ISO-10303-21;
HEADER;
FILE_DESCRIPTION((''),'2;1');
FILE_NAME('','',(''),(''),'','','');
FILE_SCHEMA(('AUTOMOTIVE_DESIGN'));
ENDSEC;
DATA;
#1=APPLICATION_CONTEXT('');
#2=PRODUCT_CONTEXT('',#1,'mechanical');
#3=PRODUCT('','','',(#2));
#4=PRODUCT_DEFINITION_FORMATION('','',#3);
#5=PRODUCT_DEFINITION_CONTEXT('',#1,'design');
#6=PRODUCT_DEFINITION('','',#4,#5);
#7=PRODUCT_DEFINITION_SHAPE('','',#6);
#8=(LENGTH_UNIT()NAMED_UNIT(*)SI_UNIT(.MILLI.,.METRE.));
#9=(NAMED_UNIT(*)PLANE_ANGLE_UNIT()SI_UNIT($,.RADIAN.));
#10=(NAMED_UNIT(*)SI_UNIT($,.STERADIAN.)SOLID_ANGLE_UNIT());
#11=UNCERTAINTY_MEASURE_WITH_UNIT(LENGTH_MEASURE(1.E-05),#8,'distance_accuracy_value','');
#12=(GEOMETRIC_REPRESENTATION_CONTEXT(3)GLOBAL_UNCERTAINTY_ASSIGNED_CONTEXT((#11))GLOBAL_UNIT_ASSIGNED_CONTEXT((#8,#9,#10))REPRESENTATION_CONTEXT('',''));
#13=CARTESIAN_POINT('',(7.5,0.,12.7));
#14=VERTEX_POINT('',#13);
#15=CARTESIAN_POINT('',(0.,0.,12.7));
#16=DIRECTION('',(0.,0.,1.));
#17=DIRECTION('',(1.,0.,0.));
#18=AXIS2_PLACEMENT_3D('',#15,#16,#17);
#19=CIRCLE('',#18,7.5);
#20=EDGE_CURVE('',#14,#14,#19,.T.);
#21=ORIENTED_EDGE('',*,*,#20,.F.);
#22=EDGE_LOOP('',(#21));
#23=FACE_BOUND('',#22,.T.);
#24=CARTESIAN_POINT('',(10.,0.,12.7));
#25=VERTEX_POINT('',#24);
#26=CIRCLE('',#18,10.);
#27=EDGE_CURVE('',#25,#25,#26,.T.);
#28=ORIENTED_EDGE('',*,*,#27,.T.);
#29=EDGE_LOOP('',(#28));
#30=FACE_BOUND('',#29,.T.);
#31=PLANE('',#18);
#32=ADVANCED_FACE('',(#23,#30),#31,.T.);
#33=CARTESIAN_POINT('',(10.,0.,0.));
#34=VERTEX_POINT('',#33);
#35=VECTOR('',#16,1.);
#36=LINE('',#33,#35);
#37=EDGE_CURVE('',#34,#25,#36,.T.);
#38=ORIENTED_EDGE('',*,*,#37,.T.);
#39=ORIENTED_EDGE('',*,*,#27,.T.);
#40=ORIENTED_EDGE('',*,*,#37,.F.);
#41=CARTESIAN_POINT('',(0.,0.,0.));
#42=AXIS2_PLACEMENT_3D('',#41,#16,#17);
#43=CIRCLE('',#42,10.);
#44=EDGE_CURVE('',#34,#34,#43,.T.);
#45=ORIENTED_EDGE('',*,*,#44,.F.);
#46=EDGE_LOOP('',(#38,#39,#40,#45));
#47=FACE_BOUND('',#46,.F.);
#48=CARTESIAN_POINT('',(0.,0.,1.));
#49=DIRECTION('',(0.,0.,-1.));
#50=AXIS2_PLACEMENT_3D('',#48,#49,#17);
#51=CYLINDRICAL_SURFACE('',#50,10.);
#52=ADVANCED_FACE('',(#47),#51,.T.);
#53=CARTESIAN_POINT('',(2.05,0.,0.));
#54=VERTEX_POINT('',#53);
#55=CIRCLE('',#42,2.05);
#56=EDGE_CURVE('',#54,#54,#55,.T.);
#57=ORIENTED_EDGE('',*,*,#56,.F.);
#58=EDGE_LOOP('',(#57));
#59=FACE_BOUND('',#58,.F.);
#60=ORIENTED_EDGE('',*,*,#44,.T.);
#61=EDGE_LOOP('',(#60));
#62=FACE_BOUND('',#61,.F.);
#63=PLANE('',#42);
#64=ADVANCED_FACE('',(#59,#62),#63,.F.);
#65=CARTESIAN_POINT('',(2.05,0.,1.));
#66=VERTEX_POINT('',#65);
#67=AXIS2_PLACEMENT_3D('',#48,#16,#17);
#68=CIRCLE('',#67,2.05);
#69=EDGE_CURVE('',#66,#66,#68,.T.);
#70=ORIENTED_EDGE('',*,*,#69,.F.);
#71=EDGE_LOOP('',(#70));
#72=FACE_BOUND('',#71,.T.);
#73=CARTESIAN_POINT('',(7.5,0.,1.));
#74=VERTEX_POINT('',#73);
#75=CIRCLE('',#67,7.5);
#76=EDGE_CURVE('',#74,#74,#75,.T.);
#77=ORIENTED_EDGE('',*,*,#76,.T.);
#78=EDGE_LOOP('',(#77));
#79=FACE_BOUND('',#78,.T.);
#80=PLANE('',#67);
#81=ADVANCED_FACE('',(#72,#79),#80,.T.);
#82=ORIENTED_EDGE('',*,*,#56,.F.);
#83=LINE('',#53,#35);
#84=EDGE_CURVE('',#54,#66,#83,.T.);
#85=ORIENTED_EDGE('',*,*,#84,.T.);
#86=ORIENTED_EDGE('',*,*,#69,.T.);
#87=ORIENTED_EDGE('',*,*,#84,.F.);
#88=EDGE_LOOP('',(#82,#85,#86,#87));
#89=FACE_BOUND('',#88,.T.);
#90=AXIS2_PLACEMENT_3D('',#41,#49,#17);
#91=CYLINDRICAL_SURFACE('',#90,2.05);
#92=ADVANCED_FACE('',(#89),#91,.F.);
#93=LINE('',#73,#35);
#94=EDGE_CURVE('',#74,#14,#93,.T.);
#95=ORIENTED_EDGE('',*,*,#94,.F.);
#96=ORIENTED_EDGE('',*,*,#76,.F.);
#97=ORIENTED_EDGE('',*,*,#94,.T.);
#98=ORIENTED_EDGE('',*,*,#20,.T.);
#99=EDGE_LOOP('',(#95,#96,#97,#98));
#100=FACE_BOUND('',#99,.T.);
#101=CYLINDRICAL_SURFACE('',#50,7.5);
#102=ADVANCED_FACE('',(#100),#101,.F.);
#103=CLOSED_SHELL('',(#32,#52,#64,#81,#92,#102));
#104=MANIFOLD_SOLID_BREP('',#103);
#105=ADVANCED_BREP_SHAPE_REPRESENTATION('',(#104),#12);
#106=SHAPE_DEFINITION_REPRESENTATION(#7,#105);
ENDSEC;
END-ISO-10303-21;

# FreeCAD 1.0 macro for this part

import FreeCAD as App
import Part
import Sketcher

doc = App.newDocument("Part")
body = doc.addObject("PartDesign::Body", "Body")

sketch1 = doc.addObject("Sketcher::SketchObject", "Sketch")
body.addObject(sketch1)
sketch1.AttachmentSupport = (doc.XY_Plane, [""])
sketch1.MapMode = "FlatFace"
sketch1.addGeometry([
    Part.Circle(App.Vector(0, 0, 0), App.Vector(0, 0, 1), 10),
    Part.Circle(App.Vector(0, 0, 0), App.Vector(0, 0, 1), 2),
], False)
sketch1.addConstraint([
    Sketcher.Constraint("Coincident", 0, 3, -1, 1),
    Sketcher.Constraint("Coincident", 1, 3, -1, 1),
    Sketcher.Constraint("Diameter", 0, 20.0),
    Sketcher.Constraint("Diameter", 1, 4.1),
])
pad1 = doc.addObject("PartDesign::Pad", "Pad")
body.addObject(pad1)
pad1.Profile = sketch1
pad1.Length = 1

sketch2 = doc.addObject("Sketcher::SketchObject", "Sketch001")
body.addObject(sketch2)
sketch2.AttachmentSupport = (doc.XY_Plane, [""])
sketch2.MapMode = "FlatFace"
sketch2.AttachmentOffset = App.Placement(App.Vector(0, 0, 1), App.Rotation())
sketch2.addGeometry([
    Part.Circle(App.Vector(0, 0, 0), App.Vector(0, 0, 1), 10),
    Part.Circle(App.Vector(0, 0, 0), App.Vector(0, 0, 1), 8),
], False)
sketch2.addConstraint([
    Sketcher.Constraint("Coincident", 0, 3, -1, 1),
    Sketcher.Constraint("Coincident", 1, 3, -1, 1),
    Sketcher.Constraint("Diameter", 0, 20.0),
    Sketcher.Constraint("Diameter", 1, 15.0),
])
pad2 = doc.addObject("PartDesign::Pad", "Pad001")
body.addObject(pad2)
pad2.Profile = sketch2
pad2.Length = 11.7

doc.recompute()
